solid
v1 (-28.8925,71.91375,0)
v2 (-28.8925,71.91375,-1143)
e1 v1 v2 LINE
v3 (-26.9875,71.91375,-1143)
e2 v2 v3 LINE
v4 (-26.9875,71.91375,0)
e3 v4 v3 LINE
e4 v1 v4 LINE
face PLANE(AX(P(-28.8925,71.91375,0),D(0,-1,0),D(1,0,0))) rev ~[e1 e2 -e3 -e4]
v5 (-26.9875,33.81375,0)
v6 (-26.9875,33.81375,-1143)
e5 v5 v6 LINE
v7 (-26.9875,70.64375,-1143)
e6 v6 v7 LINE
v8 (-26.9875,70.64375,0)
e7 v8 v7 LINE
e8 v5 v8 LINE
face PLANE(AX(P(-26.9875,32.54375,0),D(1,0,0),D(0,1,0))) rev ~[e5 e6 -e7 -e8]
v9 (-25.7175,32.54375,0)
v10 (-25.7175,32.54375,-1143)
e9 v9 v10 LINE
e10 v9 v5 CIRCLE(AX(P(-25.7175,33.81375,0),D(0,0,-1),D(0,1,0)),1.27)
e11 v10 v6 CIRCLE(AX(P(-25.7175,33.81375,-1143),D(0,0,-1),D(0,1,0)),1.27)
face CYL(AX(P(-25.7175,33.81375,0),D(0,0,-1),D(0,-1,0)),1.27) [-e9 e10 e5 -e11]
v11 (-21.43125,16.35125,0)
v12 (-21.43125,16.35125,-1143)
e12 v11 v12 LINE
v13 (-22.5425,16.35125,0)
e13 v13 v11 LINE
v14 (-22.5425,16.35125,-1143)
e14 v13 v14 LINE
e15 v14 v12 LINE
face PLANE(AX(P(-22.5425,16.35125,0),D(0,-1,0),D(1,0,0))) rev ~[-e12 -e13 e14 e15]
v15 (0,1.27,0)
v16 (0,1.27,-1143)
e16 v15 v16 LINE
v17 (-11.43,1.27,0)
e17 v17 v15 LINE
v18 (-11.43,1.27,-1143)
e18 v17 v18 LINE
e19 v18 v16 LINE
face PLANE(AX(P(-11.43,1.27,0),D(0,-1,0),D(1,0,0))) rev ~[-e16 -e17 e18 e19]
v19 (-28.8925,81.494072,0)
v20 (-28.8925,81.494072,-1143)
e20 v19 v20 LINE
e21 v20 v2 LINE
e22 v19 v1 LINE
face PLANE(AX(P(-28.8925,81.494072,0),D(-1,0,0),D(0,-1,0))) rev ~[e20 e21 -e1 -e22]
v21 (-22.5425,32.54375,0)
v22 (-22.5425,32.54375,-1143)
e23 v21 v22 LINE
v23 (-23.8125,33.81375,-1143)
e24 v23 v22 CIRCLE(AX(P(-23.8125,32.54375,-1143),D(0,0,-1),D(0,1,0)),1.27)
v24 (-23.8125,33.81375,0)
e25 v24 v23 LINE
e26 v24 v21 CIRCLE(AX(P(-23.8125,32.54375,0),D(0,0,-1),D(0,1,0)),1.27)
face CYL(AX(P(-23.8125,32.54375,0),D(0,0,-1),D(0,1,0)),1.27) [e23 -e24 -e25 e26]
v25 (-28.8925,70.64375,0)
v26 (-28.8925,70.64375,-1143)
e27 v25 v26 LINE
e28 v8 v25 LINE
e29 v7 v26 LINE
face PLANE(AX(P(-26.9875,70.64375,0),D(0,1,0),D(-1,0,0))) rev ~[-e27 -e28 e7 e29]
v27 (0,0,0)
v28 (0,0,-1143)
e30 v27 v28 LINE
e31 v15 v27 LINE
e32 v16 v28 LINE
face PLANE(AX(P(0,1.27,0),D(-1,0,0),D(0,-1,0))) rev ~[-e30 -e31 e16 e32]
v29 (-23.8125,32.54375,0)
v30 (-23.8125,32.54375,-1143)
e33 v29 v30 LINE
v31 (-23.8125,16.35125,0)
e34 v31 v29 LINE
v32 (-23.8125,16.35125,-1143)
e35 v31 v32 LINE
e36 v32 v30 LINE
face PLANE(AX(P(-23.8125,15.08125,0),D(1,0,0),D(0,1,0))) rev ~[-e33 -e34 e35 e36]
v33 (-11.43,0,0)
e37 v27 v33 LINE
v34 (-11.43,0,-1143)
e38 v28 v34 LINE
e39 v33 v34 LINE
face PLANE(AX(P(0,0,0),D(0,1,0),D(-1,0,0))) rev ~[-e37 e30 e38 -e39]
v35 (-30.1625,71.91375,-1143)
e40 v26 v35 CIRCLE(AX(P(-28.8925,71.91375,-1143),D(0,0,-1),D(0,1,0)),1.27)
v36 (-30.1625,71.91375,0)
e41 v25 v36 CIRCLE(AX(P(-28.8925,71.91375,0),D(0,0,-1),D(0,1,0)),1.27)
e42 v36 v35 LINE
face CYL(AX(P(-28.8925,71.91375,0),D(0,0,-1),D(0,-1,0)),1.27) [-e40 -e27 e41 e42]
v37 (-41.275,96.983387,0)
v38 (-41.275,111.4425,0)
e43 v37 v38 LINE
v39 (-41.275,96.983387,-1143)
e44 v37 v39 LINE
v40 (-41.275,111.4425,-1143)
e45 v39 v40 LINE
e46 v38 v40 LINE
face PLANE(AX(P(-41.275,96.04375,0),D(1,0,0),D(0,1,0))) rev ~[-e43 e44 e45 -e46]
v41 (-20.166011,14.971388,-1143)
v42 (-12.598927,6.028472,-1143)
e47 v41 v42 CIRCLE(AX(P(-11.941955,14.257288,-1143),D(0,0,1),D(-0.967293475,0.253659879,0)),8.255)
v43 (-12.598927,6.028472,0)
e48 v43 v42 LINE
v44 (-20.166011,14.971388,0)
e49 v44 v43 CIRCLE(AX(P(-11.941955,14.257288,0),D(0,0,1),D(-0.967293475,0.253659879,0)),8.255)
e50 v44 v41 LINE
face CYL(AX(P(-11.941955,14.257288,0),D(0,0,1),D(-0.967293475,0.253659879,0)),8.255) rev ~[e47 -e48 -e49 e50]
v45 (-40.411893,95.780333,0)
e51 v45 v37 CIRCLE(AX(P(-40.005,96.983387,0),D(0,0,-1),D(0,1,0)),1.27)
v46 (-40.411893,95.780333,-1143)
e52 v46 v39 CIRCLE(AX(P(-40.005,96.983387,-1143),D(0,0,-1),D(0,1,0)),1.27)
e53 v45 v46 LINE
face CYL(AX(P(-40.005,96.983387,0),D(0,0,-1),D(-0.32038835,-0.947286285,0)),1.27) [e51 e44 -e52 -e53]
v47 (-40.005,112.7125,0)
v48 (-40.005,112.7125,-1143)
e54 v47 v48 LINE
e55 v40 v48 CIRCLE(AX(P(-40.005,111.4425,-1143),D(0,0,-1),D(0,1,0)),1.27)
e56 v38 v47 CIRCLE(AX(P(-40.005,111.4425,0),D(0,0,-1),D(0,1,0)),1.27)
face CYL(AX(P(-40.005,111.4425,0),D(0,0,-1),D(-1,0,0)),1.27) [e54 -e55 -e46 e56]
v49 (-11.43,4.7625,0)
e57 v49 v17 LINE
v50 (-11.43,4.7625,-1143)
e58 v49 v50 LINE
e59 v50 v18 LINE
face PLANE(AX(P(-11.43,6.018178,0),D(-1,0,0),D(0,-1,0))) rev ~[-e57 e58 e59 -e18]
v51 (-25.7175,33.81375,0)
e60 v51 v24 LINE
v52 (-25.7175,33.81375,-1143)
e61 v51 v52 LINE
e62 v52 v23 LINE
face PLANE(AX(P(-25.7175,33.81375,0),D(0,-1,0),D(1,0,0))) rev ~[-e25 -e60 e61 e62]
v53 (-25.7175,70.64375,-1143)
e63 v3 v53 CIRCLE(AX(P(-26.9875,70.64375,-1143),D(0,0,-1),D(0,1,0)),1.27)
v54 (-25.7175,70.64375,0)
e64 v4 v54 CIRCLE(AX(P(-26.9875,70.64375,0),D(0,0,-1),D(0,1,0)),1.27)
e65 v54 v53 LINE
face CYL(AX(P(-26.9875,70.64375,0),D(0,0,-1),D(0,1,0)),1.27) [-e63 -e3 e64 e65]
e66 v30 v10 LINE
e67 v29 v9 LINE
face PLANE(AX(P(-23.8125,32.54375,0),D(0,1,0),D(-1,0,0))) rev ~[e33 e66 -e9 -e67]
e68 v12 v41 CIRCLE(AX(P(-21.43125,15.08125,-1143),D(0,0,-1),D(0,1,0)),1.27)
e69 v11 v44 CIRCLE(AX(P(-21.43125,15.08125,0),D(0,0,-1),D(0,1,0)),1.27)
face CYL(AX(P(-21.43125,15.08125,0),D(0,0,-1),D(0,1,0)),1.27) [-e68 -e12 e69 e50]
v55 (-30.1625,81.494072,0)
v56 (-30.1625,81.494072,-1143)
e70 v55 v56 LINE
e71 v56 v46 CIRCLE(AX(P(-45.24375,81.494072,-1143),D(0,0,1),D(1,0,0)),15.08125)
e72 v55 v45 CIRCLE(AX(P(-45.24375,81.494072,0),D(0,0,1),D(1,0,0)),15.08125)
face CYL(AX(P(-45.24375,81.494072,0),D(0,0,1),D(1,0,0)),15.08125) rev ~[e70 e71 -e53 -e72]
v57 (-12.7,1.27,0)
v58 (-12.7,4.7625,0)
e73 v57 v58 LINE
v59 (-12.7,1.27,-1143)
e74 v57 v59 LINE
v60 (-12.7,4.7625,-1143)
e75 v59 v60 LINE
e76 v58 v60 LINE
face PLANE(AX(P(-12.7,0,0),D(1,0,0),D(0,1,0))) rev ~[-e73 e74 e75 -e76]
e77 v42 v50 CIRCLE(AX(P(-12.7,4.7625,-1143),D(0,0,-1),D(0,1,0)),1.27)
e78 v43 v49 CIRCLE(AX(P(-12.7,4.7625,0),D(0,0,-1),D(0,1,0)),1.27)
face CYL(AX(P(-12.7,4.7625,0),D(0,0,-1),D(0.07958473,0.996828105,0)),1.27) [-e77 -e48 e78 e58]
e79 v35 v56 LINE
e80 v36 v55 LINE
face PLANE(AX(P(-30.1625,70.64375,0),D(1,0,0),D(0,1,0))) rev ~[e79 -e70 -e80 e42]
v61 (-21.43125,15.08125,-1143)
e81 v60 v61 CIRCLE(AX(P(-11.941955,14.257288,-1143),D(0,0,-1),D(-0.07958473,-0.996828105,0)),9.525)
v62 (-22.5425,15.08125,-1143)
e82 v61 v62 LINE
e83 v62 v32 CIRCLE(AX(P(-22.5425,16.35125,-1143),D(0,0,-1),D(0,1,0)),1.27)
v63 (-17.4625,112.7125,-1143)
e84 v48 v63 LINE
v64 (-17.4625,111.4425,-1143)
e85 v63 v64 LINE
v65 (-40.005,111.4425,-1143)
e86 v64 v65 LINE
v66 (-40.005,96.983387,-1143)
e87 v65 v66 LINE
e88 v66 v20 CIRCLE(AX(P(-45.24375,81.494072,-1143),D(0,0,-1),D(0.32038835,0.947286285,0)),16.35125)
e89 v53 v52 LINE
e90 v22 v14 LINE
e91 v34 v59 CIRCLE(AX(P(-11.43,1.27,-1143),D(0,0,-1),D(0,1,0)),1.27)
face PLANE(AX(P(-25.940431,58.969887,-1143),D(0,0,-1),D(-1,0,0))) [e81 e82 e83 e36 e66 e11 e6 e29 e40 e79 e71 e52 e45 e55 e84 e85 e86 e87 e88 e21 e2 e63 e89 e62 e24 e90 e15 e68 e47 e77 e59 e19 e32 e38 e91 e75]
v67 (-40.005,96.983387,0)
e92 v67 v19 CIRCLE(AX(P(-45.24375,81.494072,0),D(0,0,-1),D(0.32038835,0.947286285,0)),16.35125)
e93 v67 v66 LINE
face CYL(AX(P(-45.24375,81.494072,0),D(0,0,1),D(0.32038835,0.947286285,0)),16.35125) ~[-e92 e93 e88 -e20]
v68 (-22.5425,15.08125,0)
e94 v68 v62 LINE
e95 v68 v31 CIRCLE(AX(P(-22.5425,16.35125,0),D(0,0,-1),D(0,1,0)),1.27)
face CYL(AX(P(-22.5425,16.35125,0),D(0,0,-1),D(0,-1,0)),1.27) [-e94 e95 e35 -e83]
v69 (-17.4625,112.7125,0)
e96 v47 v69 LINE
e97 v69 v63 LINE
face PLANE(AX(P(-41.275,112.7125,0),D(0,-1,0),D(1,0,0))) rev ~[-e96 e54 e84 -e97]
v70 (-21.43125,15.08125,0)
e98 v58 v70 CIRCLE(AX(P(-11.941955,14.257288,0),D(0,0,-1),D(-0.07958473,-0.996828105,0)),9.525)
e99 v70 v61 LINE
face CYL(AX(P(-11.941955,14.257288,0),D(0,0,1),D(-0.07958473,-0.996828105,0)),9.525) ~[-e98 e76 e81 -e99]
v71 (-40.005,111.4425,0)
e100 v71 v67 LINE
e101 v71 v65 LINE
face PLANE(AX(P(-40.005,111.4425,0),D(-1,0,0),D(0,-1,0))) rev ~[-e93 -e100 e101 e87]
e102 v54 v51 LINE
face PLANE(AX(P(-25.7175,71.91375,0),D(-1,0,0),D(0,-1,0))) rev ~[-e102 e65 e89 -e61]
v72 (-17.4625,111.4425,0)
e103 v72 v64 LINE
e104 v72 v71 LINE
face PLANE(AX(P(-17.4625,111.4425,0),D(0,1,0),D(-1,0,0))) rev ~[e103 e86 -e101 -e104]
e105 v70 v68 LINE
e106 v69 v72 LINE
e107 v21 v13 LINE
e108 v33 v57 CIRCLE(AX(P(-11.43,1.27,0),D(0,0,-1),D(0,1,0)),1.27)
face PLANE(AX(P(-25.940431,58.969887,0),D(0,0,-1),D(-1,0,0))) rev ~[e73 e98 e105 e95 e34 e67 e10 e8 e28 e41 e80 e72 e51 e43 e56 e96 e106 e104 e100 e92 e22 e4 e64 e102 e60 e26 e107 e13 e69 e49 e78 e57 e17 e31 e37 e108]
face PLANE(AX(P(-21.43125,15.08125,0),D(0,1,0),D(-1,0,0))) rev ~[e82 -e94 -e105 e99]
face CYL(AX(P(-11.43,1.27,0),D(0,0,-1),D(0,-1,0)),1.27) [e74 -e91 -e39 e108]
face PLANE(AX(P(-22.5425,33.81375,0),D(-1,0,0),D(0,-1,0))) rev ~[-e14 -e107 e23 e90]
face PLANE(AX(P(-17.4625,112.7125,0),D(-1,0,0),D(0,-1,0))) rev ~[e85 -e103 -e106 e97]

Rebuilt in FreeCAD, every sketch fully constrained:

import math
import FreeCAD as App
import Part
import Sketcher

V = App.Vector
Q = App.Units.Quantity


def edges_at(feature, points):
    """Names of the edges that pass closest to the given points."""
    edges = feature.Shape.Edges
    near = lambda p: min(range(len(edges)), key=lambda i: edges[i].distToShape(Part.Vertex(*p))[0])
    return sorted({f"Edge{near(p) + 1}" for p in points})

doc = App.newDocument("Part")
body = doc.addObject("PartDesign::Body", "Body")

sketch1 = body.newObject("Sketcher::SketchObject", "Sketch")
sketch1.AttachmentSupport = (doc.getObject("XY_Plane"), [""])
sketch1.MapMode = "FlatFace"
sketch1.addGeometry([
    Part.LineSegment(V(-12.7, 0, 0), V(0, 0, 0)),
    Part.LineSegment(V(0, 0, 0), V(0, 1.27, 0)),
    Part.LineSegment(V(0, 1.27, 0), V(-11.43, 1.27, 0)),
    Part.LineSegment(V(-11.43, 1.27, 0), V(-11.43, 6.018178, 0)),
    Part.ArcOfCircle(Part.Circle(V(-11.941955, 14.257288, 0), V(0, 0, 1), 8.255), math.radians(165.305809), math.radians(273.55563)),
    Part.LineSegment(V(-19.926963, 16.35125, 0), V(-22.5425, 16.35125, 0)),
    Part.LineSegment(V(-22.5425, 16.35125, 0), V(-22.5425, 33.81375, 0)),
    Part.LineSegment(V(-22.5425, 33.81375, 0), V(-25.7175, 33.81375, 0)),
    Part.LineSegment(V(-25.7175, 33.81375, 0), V(-25.7175, 71.91375, 0)),
    Part.LineSegment(V(-25.7175, 71.91375, 0), V(-28.8925, 71.91375, 0)),
    Part.LineSegment(V(-28.8925, 71.91375, 0), V(-28.8925, 81.494072, 0)),
    Part.ArcOfCircle(Part.Circle(V(-45.24375, 81.494072, 0), V(0, 0, 1), 16.35125), math.radians(0), math.radians(71.313588)),
    Part.LineSegment(V(-40.005, 96.983387, 0), V(-40.005, 111.4425, 0)),
    Part.LineSegment(V(-40.005, 111.4425, 0), V(-17.4625, 111.4425, 0)),
    Part.LineSegment(V(-17.4625, 111.4425, 0), V(-17.4625, 112.7125, 0)),
    Part.LineSegment(V(-17.4625, 112.7125, 0), V(-41.275, 112.7125, 0)),
    Part.LineSegment(V(-41.275, 112.7125, 0), V(-41.275, 96.04375, 0)),
    Part.ArcOfCircle(Part.Circle(V(-45.24375, 81.494072, 0), V(0, 0, 1), 15.08125), math.radians(0), math.radians(74.742477)),
    Part.LineSegment(V(-30.1625, 81.494072, 0), V(-30.1625, 70.64375, 0)),
    Part.LineSegment(V(-30.1625, 70.64375, 0), V(-26.9875, 70.64375, 0)),
    Part.LineSegment(V(-26.9875, 70.64375, 0), V(-26.9875, 32.54375, 0)),
    Part.LineSegment(V(-26.9875, 32.54375, 0), V(-23.8125, 32.54375, 0)),
    Part.LineSegment(V(-23.8125, 32.54375, 0), V(-23.8125, 15.08125, 0)),
    Part.LineSegment(V(-23.8125, 15.08125, 0), V(-21.43125, 15.08125, 0)),
    Part.ArcOfCircle(Part.Circle(V(-11.941955, 14.257288, 0), V(0, 0, 1), 9.525), math.radians(175.037413), math.radians(265.435304)),
    Part.LineSegment(V(-12.7, 4.7625, 0), V(-12.7, 0, 0)),
], False)
sketch1.addConstraint([
    Sketcher.Constraint("Coincident", 0, 2, 1, 1),
    Sketcher.Constraint("Coincident", 1, 2, 2, 1),
    Sketcher.Constraint("Coincident", 2, 2, 3, 1),
    Sketcher.Constraint("Coincident", 3, 2, 4, 2),
    Sketcher.Constraint("Coincident", 4, 1, 5, 1),
    Sketcher.Constraint("Coincident", 5, 2, 6, 1),
    Sketcher.Constraint("Coincident", 6, 2, 7, 1),
    Sketcher.Constraint("Coincident", 7, 2, 8, 1),
    Sketcher.Constraint("Coincident", 8, 2, 9, 1),
    Sketcher.Constraint("Coincident", 9, 2, 10, 1),
    Sketcher.Constraint("Tangent", 10, 2, 11, 1),
    Sketcher.Constraint("Coincident", 11, 2, 12, 1),
    Sketcher.Constraint("Coincident", 12, 2, 13, 1),
    Sketcher.Constraint("Coincident", 13, 2, 14, 1),
    Sketcher.Constraint("Coincident", 14, 2, 15, 1),
    Sketcher.Constraint("Coincident", 15, 2, 16, 1),
    Sketcher.Constraint("Coincident", 16, 2, 17, 2),
    Sketcher.Constraint("Tangent", 17, 1, 18, 1),
    Sketcher.Constraint("Coincident", 18, 2, 19, 1),
    Sketcher.Constraint("Coincident", 19, 2, 20, 1),
    Sketcher.Constraint("Coincident", 20, 2, 21, 1),
    Sketcher.Constraint("Coincident", 21, 2, 22, 1),
    Sketcher.Constraint("Coincident", 22, 2, 23, 1),
    Sketcher.Constraint("Coincident", 23, 2, 24, 1),
    Sketcher.Constraint("Coincident", 24, 2, 25, 1),
    Sketcher.Constraint("Coincident", 25, 2, 0, 1),
    Sketcher.Constraint("Horizontal", 0),
    Sketcher.Constraint("Vertical", 1),
    Sketcher.Constraint("Horizontal", 2),
    Sketcher.Constraint("Vertical", 3),
    Sketcher.Constraint("Horizontal", 5),
    Sketcher.Constraint("Vertical", 6),
    Sketcher.Constraint("Horizontal", 7),
    Sketcher.Constraint("Vertical", 8),
    Sketcher.Constraint("Horizontal", 9),
    Sketcher.Constraint("Vertical", 10),
    Sketcher.Constraint("Vertical", 12),
    Sketcher.Constraint("Horizontal", 13),
    Sketcher.Constraint("Vertical", 14),
    Sketcher.Constraint("Horizontal", 15),
    Sketcher.Constraint("Vertical", 16),
    Sketcher.Constraint("Vertical", 18),
    Sketcher.Constraint("Horizontal", 19),
    Sketcher.Constraint("Vertical", 20),
    Sketcher.Constraint("Horizontal", 21),
    Sketcher.Constraint("Vertical", 22),
    Sketcher.Constraint("Horizontal", 23),
    Sketcher.Constraint("Vertical", 25),
    Sketcher.Constraint("Coincident", 0, 2, -1, 1),
    Sketcher.Constraint("Coincident", 17, 3, 11, 3),
    Sketcher.Constraint("Coincident", 24, 3, 4, 3),
    Sketcher.Constraint("Equal", 7, 9),
    Sketcher.Constraint("Equal", 9, 19),
    Sketcher.Constraint("Equal", 19, 21),
    Sketcher.Constraint("Equal", 1, 14),
    Sketcher.Constraint("Equal", 8, 20),
    Sketcher.Constraint("Equal", 6, 22),
    Sketcher.Constraint("DistanceX", 0, 1, 0, 2, Q("0.5 in")),
    Sketcher.Constraint("DistanceY", 8, 1, 8, 2, Q("1.5 in")),
    Sketcher.Constraint("Radius", 4, Q("0.325 in")),
    Sketcher.Constraint("Radius", 17, Q("0.59375 in")),
    Sketcher.Constraint("Radius", 24, Q("0.375 in")),
    Sketcher.Constraint("DistanceX", 2, 2, 2, 1, Q("0.45 in")),
    Sketcher.Constraint("DistanceY", 1, 1, 1, 2, Q("0.05 in")),
    Sketcher.Constraint("DistanceX", 7, 2, 7, 1, Q("0.125 in")),
    Sketcher.Constraint("DistanceX", 15, 2, 15, 1, Q("0.9375 in")),
    Sketcher.Constraint("DistanceX", 23, 1, 23, 2, Q("0.09375 in")),
    Sketcher.Constraint("DistanceY", 6, 1, 6, 2, Q("0.6875 in")),
    Sketcher.Constraint("DistanceY", 16, 2, 16, 1, Q("0.65625 in")),
    Sketcher.Constraint("DistanceY", 25, 2, 25, 1, Q("0.1875 in")),
    Sketcher.Constraint("DistanceX", 10, 2, 13, 2, Q("0.45 in")),
    Sketcher.Constraint("DistanceX", 15, 2, 12, 2, Q("0.05 in")),
    Sketcher.Constraint("DistanceX", 17, 1, 10, 2, Q("0.05 in")),
    Sketcher.Constraint("DistanceY", 18, 2, 9, 2, Q("0.05 in")),
    Sketcher.Constraint("DistanceX", 11, 3, -1, 1, Q("1.78125 in")),
    Sketcher.Constraint("DistanceY", -1, 1, 14, 2, Q("4.4375 in")),
    Sketcher.Constraint("DistanceY", -1, 1, 18, 2, Q("2.78125 in")),
])
pad1 = body.newObject("PartDesign::Pad", "Pad")
pad1.Profile = sketch1
pad1.Length = Q("45 in")
pad1.Reversed = True
doc.recompute()

fillet = body.newObject("PartDesign::Fillet", "Fillet")
fillet.Base = (pad1, edges_at(pad1, [
    (-25.718, 71.914, -571.5),
    (-22.543, 33.814, -571.5),
    (-19.927, 16.351, -571.5),
    (-11.43, 6.018, -571.5),
    (-12.7, 0, -571.5),
    (-23.812, 15.081, -571.5),
    (-26.988, 32.544, -571.5),
    (-30.163, 70.644, -571.5),
    (-41.275, 96.044, -571.5),
    (-41.275, 112.713, -571.5),
]))
fillet.Radius = Q("0.05 in")

doc.recompute()
